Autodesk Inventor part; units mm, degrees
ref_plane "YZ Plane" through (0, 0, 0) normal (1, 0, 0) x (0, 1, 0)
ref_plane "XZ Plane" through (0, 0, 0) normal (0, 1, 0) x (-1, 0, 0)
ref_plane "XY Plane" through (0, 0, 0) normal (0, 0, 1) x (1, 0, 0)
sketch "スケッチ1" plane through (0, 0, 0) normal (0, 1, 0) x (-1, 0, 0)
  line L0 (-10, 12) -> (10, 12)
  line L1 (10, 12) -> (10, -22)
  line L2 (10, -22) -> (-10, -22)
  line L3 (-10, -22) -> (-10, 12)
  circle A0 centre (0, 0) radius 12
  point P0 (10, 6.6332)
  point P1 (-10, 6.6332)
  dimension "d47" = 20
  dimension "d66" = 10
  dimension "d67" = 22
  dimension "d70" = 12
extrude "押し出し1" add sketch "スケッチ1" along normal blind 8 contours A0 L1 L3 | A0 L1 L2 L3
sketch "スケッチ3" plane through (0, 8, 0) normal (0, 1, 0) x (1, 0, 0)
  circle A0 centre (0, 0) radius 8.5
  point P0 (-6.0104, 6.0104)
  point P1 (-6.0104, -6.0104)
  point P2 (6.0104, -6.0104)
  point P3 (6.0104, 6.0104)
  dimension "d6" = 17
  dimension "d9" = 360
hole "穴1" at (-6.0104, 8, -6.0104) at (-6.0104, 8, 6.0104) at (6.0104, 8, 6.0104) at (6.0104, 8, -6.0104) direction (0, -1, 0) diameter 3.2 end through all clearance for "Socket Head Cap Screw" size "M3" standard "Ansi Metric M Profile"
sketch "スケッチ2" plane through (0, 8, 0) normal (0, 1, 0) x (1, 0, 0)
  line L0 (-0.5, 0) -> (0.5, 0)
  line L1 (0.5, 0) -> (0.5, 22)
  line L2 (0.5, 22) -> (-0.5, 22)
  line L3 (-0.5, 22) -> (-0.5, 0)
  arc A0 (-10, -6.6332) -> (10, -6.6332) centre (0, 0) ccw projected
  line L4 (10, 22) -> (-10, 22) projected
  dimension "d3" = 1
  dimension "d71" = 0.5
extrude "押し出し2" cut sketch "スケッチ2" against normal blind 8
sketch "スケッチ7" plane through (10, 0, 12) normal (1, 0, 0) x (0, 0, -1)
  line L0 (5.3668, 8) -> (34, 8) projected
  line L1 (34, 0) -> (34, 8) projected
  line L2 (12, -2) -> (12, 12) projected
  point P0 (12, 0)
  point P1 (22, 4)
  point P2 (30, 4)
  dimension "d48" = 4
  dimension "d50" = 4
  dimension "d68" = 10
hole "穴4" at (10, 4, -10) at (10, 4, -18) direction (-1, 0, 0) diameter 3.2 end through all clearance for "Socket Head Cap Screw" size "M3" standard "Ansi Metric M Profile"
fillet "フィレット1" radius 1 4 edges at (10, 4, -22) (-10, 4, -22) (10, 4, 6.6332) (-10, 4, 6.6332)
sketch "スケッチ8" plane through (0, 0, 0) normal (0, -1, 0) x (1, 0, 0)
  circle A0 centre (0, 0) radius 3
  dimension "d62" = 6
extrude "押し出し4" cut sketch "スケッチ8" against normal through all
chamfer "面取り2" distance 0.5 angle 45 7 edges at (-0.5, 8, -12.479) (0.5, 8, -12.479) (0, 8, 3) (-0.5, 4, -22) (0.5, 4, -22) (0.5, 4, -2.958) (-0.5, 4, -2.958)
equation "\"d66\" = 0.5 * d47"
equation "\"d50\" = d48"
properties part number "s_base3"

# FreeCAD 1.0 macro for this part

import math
import FreeCAD as App
import Part
import Sketcher
from FreeCAD import Vector
Q = App.Units.Quantity


def edges_at(feature, points):
    """Names of the edges that pass closest to the given points."""
    edges = feature.Shape.Edges
    near = lambda p: min(range(len(edges)), key=lambda i: edges[i].distToShape(Part.Vertex(*p))[0])
    return sorted({f"Edge{near(p) + 1}" for p in points})

doc = App.newDocument("Part")
body = doc.addObject("PartDesign::Body", "Body")

# Sketch on XZ plane
sketch1 = body.newObject("Sketcher::SketchObject", "Sketch")
sketch1.AttachmentSupport = (doc.getObject("XZ_Plane"), [""])
sketch1.MapMode = "FlatFace"
sketch1.addGeometry(Part.ArcOfCircle(Part.Circle(Vector(0, 0, 0), Vector(0, 0, 1), 12), math.radians(34), math.radians(146)), False)
sketch1.addGeometry(Part.LineSegment(Vector(10, 7, 0), Vector(10, -22, 0)), False)
sketch1.addGeometry(Part.LineSegment(Vector(10, -22, 0), Vector(-10, -22, 0)), False)
sketch1.addGeometry(Part.LineSegment(Vector(-10, -22, 0), Vector(-10, 7, 0)), False)
sketch1.addConstraint(Sketcher.Constraint("Coincident", 0, 1, 1, 1))
sketch1.addConstraint(Sketcher.Constraint("Coincident", 1, 2, 2, 1))
sketch1.addConstraint(Sketcher.Constraint("Coincident", 2, 2, 3, 1))
sketch1.addConstraint(Sketcher.Constraint("Coincident", 3, 2, 0, 2))
sketch1.addConstraint(Sketcher.Constraint("Vertical", 1))
sketch1.addConstraint(Sketcher.Constraint("Horizontal", 2))
sketch1.addConstraint(Sketcher.Constraint("Vertical", 3))
sketch1.addConstraint(Sketcher.Constraint("Coincident", 0, 3, -1, 1))
sketch1.addConstraint(Sketcher.Constraint("Horizontal", 0, 1, 3, 2))
sketch1.addConstraint(Sketcher.Constraint("Radius", 0, Q("12 mm")))
sketch1.addConstraint(Sketcher.Constraint("DistanceX", 2, 2, 2, 1, Q("20 mm")))
sketch1.addConstraint(Sketcher.Constraint("DistanceY", 1, 2, -1, 1, Q("22 mm")))
pad1 = body.newObject("PartDesign::Pad", "Pad")
pad1.Profile = sketch1
pad1.Length = 8
pad1.Reversed = True

# Sketch on XZ plane
sketch2 = body.newObject("Sketcher::SketchObject", "Sketch001")
sketch2.AttachmentSupport = (doc.getObject("XZ_Plane"), [""])
sketch2.MapMode = "FlatFace"
sketch2.AttachmentOffset = App.Placement(Vector(0, 0, -8), App.Rotation())
sketch2.addGeometry(Part.Circle(Vector(-6, -6, 0), Vector(0, 0, 1), 1.6), False)
sketch2.addGeometry(Part.Circle(Vector(-6, 6, 0), Vector(0, 0, 1), 1.6), False)
sketch2.addGeometry(Part.Circle(Vector(6, 6, 0), Vector(0, 0, 1), 1.6), False)
sketch2.addGeometry(Part.Circle(Vector(6, -6, 0), Vector(0, 0, 1), 1.6), False)
sketch2.addConstraint(Sketcher.Constraint("Equal", 0, 1))
sketch2.addConstraint(Sketcher.Constraint("Equal", 1, 2))
sketch2.addConstraint(Sketcher.Constraint("Equal", 2, 3))
sketch2.addConstraint(Sketcher.Constraint("Symmetric", 0, 3, 2, 3, -1, 1))
sketch2.addConstraint(Sketcher.Constraint("Symmetric", 1, 3, 3, 3, -1, 1))
sketch2.addConstraint(Sketcher.Constraint("Symmetric", 1, 3, 2, 3, -2))
sketch2.addConstraint(Sketcher.Constraint("Diameter", 0, Q("3.2 mm")))
sketch2.addConstraint(Sketcher.Constraint("DistanceX", 0, 3, -1, 1, Q("6.0104 mm")))
sketch2.addConstraint(Sketcher.Constraint("DistanceY", 0, 3, -1, 1, Q("6.0104 mm")))
doc.recompute()
hole = body.newObject("PartDesign::Hole", "Hole")
hole.Profile = sketch2
hole.ThreadType = "None"
hole.Diameter = 3.2
hole.DepthType = "ThroughAll"
hole.Reversed = True

# Sketch on XZ plane
sketch3 = body.newObject("Sketcher::SketchObject", "Sketch002")
sketch3.AttachmentSupport = (doc.getObject("XZ_Plane"), [""])
sketch3.MapMode = "FlatFace"
sketch3.AttachmentOffset = App.Placement(Vector(0, 0, -8), App.Rotation())
sketch3.addGeometry(Part.LineSegment(Vector(-0.5, -22, 0), Vector(-0.5, 0, 0)), False)
sketch3.addGeometry(Part.LineSegment(Vector(-0.5, 0, 0), Vector(0.5, 0, 0)), False)
sketch3.addGeometry(Part.LineSegment(Vector(0.5, 0, 0), Vector(0.5, -22, 0)), False)
sketch3.addGeometry(Part.LineSegment(Vector(0.5, -22, 0), Vector(-0.5, -22, 0)), False)
sketch3.addConstraint(Sketcher.Constraint("Coincident", 0, 2, 1, 1))
sketch3.addConstraint(Sketcher.Constraint("Coincident", 1, 2, 2, 1))
sketch3.addConstraint(Sketcher.Constraint("Coincident", 2, 2, 3, 1))
sketch3.addConstraint(Sketcher.Constraint("Coincident", 3, 2, 0, 1))
sketch3.addConstraint(Sketcher.Constraint("Vertical", 0))
sketch3.addConstraint(Sketcher.Constraint("Horizontal", 1))
sketch3.addConstraint(Sketcher.Constraint("Vertical", 2))
sketch3.addConstraint(Sketcher.Constraint("Horizontal", 3))
sketch3.addConstraint(Sketcher.Constraint("Symmetric", 0, 2, 1, 2, -1, 1))
sketch3.addConstraint(Sketcher.Constraint("DistanceX", 1, 1, 1, 2, Q("1 mm")))
sketch3.addConstraint(Sketcher.Constraint("DistanceY", 0, 1, 0, 2, Q("22 mm")))
pocket1 = body.newObject("PartDesign::Pocket", "Pocket")
pocket1.Profile = sketch3
pocket1.Length = 8
pocket1.Reversed = True

# Sketch on YZ plane
sketch4 = body.newObject("Sketcher::SketchObject", "Sketch003")
sketch4.AttachmentSupport = (doc.getObject("YZ_Plane"), [""])
sketch4.MapMode = "FlatFace"
sketch4.AttachmentOffset = App.Placement(Vector(0, 0, 10), App.Rotation())
sketch4.addGeometry(Part.Circle(Vector(4, -10, 0), Vector(0, 0, 1), 1.6), False)
sketch4.addGeometry(Part.Circle(Vector(4, -18, 0), Vector(0, 0, 1), 1.6), False)
sketch4.addConstraint(Sketcher.Constraint("Equal", 0, 1))
sketch4.addConstraint(Sketcher.Constraint("Vertical", 0, 3, 1, 3))
sketch4.addConstraint(Sketcher.Constraint("Diameter", 0, Q("3.2 mm")))
sketch4.addConstraint(Sketcher.Constraint("DistanceX", -1, 1, 0, 3, Q("4 mm")))
sketch4.addConstraint(Sketcher.Constraint("DistanceY", 0, 3, -1, 1, Q("10 mm")))
sketch4.addConstraint(Sketcher.Constraint("DistanceY", 1, 3, -1, 1, Q("18 mm")))
doc.recompute()
hole2 = body.newObject("PartDesign::Hole", "Hole001")
hole2.Profile = sketch4
hole2.ThreadType = "None"
hole2.Diameter = 3.2
hole2.DepthType = "ThroughAll"
doc.recompute()

fillet = body.newObject("PartDesign::Fillet", "Fillet")
fillet.Base = (hole2, edges_at(hole2, [
    (10, 4, -22),
    (-10, 4, -22),
    (10, 4, 6.633),
    (-10, 4, 6.633),
]))
fillet.Radius = 1

# Sketch on XZ plane
sketch5 = body.newObject("Sketcher::SketchObject", "Sketch004")
sketch5.AttachmentSupport = (doc.getObject("XZ_Plane"), [""])
sketch5.MapMode = "FlatFace"
sketch5.addGeometry(Part.Circle(Vector(0, 0, 0), Vector(0, 0, 1), 3), False)
sketch5.addConstraint(Sketcher.Constraint("Coincident", 0, 3, -1, 1))
sketch5.addConstraint(Sketcher.Constraint("Diameter", 0, Q("6 mm")))
pocket2 = body.newObject("PartDesign::Pocket", "Pocket001")
pocket2.Profile = sketch5
pocket2.Type = "ThroughAll"
doc.recompute()

chamfer = body.newObject("PartDesign::Chamfer", "Chamfer")
chamfer.Base = (pocket2, edges_at(pocket2, [
    (-0.5, 8, -12.479),
    (0.5, 8, -12.479),
    (0, 8, 3),
    (-0.5, 4, -22),
    (0.5, 4, -22),
    (0.5, 4, -2.958),
    (-0.5, 4, -2.958),
]))
chamfer.Size = 0.5

doc.recompute()
